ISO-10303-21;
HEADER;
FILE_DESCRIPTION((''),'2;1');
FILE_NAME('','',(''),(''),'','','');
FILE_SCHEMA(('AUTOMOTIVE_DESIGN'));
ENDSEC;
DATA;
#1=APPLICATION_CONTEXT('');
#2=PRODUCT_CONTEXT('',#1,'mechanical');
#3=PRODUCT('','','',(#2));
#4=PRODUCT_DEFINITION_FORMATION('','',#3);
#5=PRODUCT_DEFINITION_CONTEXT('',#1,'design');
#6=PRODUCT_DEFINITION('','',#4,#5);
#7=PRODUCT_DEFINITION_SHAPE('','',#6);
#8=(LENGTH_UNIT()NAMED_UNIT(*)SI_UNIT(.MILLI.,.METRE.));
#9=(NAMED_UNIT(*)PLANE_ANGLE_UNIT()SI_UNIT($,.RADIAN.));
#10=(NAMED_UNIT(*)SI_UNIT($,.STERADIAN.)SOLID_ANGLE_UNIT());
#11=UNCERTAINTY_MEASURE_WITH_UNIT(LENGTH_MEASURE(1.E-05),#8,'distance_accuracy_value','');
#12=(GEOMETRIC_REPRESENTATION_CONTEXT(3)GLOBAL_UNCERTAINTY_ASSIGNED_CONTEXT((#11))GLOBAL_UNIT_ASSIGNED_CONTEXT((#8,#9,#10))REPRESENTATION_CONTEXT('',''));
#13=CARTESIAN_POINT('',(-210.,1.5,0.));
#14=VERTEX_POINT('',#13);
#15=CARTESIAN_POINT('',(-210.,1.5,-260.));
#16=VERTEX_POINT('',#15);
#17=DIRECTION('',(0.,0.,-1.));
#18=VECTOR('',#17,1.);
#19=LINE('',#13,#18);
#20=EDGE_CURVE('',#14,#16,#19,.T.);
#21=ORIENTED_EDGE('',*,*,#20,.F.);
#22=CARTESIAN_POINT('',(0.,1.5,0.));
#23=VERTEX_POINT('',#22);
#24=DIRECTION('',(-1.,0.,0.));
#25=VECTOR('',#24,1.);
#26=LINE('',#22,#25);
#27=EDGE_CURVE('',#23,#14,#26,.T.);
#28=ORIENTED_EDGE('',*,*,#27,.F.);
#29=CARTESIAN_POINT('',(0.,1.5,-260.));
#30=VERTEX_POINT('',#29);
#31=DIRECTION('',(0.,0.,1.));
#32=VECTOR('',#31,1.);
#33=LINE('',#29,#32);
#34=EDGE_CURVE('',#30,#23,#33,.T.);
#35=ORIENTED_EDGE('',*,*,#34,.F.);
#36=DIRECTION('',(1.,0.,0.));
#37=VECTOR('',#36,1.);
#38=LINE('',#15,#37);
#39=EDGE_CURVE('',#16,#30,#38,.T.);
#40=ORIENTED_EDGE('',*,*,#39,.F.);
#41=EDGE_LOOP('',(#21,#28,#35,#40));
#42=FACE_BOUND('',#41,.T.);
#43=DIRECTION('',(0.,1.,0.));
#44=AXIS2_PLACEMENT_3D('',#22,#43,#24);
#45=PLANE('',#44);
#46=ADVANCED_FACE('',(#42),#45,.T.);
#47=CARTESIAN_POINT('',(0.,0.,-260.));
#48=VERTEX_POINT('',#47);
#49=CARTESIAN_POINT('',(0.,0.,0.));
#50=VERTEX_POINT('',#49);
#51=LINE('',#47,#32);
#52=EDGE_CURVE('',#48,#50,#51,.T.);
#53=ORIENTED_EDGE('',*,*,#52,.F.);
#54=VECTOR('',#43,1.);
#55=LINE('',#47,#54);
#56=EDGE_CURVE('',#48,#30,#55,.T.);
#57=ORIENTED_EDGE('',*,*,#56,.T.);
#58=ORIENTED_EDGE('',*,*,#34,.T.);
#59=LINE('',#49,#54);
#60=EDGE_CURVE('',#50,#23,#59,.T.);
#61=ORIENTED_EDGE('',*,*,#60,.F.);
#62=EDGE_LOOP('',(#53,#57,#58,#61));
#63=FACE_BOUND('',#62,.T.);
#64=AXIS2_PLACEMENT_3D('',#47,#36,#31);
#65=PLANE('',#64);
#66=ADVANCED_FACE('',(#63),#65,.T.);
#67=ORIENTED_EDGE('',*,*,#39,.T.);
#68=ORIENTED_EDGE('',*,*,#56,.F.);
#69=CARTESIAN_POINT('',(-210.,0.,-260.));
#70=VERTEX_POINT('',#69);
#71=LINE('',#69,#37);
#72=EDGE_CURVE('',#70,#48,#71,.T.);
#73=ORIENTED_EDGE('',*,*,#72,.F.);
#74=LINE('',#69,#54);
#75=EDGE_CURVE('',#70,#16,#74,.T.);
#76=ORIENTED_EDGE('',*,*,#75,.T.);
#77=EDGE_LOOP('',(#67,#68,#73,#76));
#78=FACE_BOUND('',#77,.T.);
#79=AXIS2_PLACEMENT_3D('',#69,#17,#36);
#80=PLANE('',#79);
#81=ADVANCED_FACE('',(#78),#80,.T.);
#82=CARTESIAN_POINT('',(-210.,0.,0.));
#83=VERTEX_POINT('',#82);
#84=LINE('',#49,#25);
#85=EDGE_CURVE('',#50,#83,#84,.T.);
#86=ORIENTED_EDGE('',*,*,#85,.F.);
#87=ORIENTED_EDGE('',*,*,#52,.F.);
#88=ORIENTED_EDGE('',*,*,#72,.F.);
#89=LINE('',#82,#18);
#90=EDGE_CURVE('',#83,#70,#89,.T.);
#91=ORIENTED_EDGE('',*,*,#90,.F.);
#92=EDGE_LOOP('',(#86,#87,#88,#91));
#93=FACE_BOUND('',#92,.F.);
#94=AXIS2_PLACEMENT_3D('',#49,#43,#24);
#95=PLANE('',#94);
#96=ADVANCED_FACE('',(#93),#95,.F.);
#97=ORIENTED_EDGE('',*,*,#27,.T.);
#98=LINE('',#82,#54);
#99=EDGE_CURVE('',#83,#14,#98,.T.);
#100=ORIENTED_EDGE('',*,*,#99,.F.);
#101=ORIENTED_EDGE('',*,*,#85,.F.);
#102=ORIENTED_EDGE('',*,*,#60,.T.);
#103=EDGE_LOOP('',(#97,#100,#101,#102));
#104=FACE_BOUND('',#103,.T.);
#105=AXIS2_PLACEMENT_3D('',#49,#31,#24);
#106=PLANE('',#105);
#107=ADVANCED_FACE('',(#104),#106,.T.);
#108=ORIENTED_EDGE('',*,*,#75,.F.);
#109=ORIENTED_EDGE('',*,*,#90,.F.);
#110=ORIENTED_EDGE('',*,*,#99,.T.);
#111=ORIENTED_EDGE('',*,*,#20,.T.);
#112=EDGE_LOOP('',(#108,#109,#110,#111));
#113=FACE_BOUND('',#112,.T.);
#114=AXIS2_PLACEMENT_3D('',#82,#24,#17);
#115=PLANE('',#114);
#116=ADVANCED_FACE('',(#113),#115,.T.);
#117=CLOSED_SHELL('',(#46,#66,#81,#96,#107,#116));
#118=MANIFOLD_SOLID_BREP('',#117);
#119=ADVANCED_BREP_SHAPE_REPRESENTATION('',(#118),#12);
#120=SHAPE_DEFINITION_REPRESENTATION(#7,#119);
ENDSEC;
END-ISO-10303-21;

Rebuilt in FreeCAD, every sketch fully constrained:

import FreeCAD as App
import Part
import Sketcher
Q = App.Units.Quantity

doc = App.newDocument("Part")
body = doc.addObject("PartDesign::Body", "Body")

sketch1 = body.newObject("Sketcher::SketchObject", "Sketch")
sketch1.AttachmentSupport = (doc.getObject("XZ_Plane"), [""])
sketch1.MapMode = "FlatFace"
sketch1.addGeometry([
    Part.LineSegment(App.Vector(-210, 0, 0), App.Vector(0, 0, 0)),
    Part.LineSegment(App.Vector(0, 0, 0), App.Vector(0, -260, 0)),
    Part.LineSegment(App.Vector(0, -260, 0), App.Vector(-210, -260, 0)),
    Part.LineSegment(App.Vector(-210, -260, 0), App.Vector(-210, 0, 0)),
], False)
sketch1.addConstraint([
    Sketcher.Constraint("Coincident", 0, 2, 1, 1),
    Sketcher.Constraint("Coincident", 1, 2, 2, 1),
    Sketcher.Constraint("Coincident", 2, 2, 3, 1),
    Sketcher.Constraint("Coincident", 3, 2, 0, 1),
    Sketcher.Constraint("Horizontal", 0),
    Sketcher.Constraint("Vertical", 1),
    Sketcher.Constraint("Horizontal", 2),
    Sketcher.Constraint("Vertical", 3),
    Sketcher.Constraint("Coincident", 0, 2, -1, 1),
    Sketcher.Constraint("DistanceX", 0, 1, 0, 2, Q("210 mm")),
    Sketcher.Constraint("DistanceY", 1, 2, 1, 1, Q("260 mm")),
])
pad1 = body.newObject("PartDesign::Pad", "Pad")
pad1.Profile = sketch1
pad1.Length = 1.5
pad1.Reversed = True

doc.recompute()
